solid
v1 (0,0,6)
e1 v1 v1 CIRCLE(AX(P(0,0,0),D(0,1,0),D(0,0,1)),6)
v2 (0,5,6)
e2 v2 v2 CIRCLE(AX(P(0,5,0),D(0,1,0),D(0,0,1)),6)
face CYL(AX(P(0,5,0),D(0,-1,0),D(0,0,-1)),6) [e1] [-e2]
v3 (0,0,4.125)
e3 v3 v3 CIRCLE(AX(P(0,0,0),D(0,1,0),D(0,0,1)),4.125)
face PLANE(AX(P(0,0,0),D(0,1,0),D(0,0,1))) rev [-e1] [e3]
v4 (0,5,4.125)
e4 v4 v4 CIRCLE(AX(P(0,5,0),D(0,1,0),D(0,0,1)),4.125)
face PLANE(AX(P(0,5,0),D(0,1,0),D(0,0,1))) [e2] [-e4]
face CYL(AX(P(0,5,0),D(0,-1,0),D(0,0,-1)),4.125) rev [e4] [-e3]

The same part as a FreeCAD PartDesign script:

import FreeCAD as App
import Part
import Sketcher

doc = App.newDocument("Part")
body = doc.addObject("PartDesign::Body", "Body")

# Sketch on XZ plane
sketch1 = doc.addObject("Sketcher::SketchObject", "Sketch")
body.addObject(sketch1)
sketch1.AttachmentSupport = (doc.XZ_Plane, [""])
sketch1.MapMode = "FlatFace"
sketch1.addGeometry([
    Part.Circle(App.Vector(0, 0, 0), App.Vector(0, 0, 1), 6),
    Part.Circle(App.Vector(0, 0, 0), App.Vector(0, 0, 1), 4.1),
], False)
sketch1.addConstraint([
    Sketcher.Constraint("Coincident", 0, 3, -1, 1),
    Sketcher.Constraint("Coincident", 1, 3, -1, 1),
    Sketcher.Constraint("Diameter", 0, 12.0),
    Sketcher.Constraint("Diameter", 1, 8.25),
])
pad1 = doc.addObject("PartDesign::Pad", "Pad")
body.addObject(pad1)
pad1.Profile = sketch1
pad1.Length = 5
pad1.Reversed = True

doc.recompute()
